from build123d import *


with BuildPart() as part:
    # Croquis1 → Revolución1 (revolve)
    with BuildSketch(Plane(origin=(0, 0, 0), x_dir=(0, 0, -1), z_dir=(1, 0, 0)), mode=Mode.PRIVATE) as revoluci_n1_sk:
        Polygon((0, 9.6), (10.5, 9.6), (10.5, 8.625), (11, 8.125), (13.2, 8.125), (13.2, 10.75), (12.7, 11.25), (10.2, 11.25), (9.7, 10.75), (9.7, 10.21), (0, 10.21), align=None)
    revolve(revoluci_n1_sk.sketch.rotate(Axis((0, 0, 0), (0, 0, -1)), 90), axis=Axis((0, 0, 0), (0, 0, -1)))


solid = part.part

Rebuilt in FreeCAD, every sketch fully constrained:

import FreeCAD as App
import Part
import Sketcher
from FreeCAD import Vector
Q = App.Units.Quantity

doc = App.newDocument("Part")
params = doc.addObject("Spreadsheet::Sheet", "Params")
for row, (alias, value) in enumerate([
    ("sketch1_height", "10.5 mm"),
    ("sketch1_height2", "2.2 mm"),
    ("sketch1_height3", "2.5 mm"),
    ("sketch1_height4", "9.7 mm"),
    ("sketch1_width", "0.54 mm"),
    ("revolution_angle", "360 deg"),
], start=1):
    params.set(f"A{row}", alias)
    params.set(f"B{row}", "=" + value)
    params.setAlias(f"B{row}", alias)

body = doc.addObject("PartDesign::Body", "Body")

# Sketch on YZ plane
sketch1 = doc.addObject("Sketcher::SketchObject", "Sketch")
body.addObject(sketch1)
sketch1.AttachmentSupport = (doc.YZ_Plane, [""])
sketch1.MapMode = "FlatFace"
sketch1.addGeometry([
    Part.LineSegment(Vector(9.6, 0, 0), Vector(9.6, -10.5, 0)),  # 0
    Part.LineSegment(Vector(9.6, -10.5, 0), Vector(8.6, -10.5, 0)),  # 1
    Part.LineSegment(Vector(8.6, -10.5, 0), Vector(8.1, -11, 0)),  # 2
    Part.LineSegment(Vector(8.1, -11, 0), Vector(8.1, -13.2, 0)),  # 3
    Part.LineSegment(Vector(8.1, -13.2, 0), Vector(10.8, -13.2, 0)),  # 4
    Part.LineSegment(Vector(10.8, -13.2, 0), Vector(11.2, -12.7, 0)),  # 5
    Part.LineSegment(Vector(11.2, -12.7, 0), Vector(11.2, -10.2, 0)),  # 6
    Part.LineSegment(Vector(11.2, -10.2, 0), Vector(10.8, -9.7, 0)),  # 7
    Part.LineSegment(Vector(10.8, -9.7, 0), Vector(10.2, -9.7, 0)),  # 8
    Part.LineSegment(Vector(10.2, -9.7, 0), Vector(10.2, 0, 0)),  # 9
    Part.LineSegment(Vector(10.2, 0, 0), Vector(9.6, 0, 0)),  # 10
], False)
sketch1.addConstraint([
    Sketcher.Constraint("Coincident", 0, 2, 1, 1),
    Sketcher.Constraint("Coincident", 1, 2, 2, 1),
    Sketcher.Constraint("Coincident", 2, 2, 3, 1),
    Sketcher.Constraint("Coincident", 3, 2, 4, 1),
    Sketcher.Constraint("Coincident", 4, 2, 5, 1),
    Sketcher.Constraint("Coincident", 5, 2, 6, 1),
    Sketcher.Constraint("Coincident", 6, 2, 7, 1),
    Sketcher.Constraint("Coincident", 7, 2, 8, 1),
    Sketcher.Constraint("Coincident", 8, 2, 9, 1),
    Sketcher.Constraint("Coincident", 9, 2, 10, 1),
    Sketcher.Constraint("Coincident", 10, 2, 0, 1),
    Sketcher.Constraint("Vertical", 0),
    Sketcher.Constraint("Horizontal", 1),
    Sketcher.Constraint("Vertical", 3),
    Sketcher.Constraint("Horizontal", 4),
    Sketcher.Constraint("Vertical", 6),
    Sketcher.Constraint("Horizontal", 8),
    Sketcher.Constraint("Vertical", 9),
    Sketcher.Constraint("Horizontal", 10),
    Sketcher.Constraint("PointOnObject", 9, 2, -1),
    Sketcher.Constraint("Parallel", 2, 5),
    Sketcher.Constraint("Perpendicular", 5, 7),
    Sketcher.Constraint("Vertical", 4, 2, 7, 2),
    Sketcher.Constraint("Equal", 2, 5),
    Sketcher.Constraint("Equal", 5, 7),
    Sketcher.Constraint("DistanceY", 0, 2, 0, 1, Q("10.5 mm")),
    Sketcher.Constraint("DistanceY", 3, 2, 3, 1, Q("2.2 mm")),
    Sketcher.Constraint("DistanceY", 6, 1, 6, 2, Q("2.5 mm")),
    Sketcher.Constraint("DistanceY", 9, 1, 9, 2, Q("9.7 mm")),
    Sketcher.Constraint("DistanceX", 8, 2, 8, 1, Q("0.54 mm")),
    Sketcher.Constraint("DistanceX", 10, 2, 10, 1, Q("0.61 mm")),
    Sketcher.Constraint("DistanceX", -1, 1, 0, 2, Q("9.6 mm")),
    Sketcher.Constraint("DistanceX", 1, 2, 1, 1, Q("0.975 mm")),
])
sketch1.setExpression("Constraints[25]", "Params.sketch1_height")
sketch1.setExpression("Constraints[26]", "Params.sketch1_height2")
sketch1.setExpression("Constraints[27]", "Params.sketch1_height3")
sketch1.setExpression("Constraints[28]", "Params.sketch1_height4")
sketch1.setExpression("Constraints[29]", "Params.sketch1_width")
revolution = doc.addObject("PartDesign::Revolution", "Revolution")
body.addObject(revolution)
revolution.Profile = sketch1
revolution.ReferenceAxis = (sketch1, ["V_Axis"])
revolution.setExpression("Angle", "Params.revolution_angle")

doc.recompute()
